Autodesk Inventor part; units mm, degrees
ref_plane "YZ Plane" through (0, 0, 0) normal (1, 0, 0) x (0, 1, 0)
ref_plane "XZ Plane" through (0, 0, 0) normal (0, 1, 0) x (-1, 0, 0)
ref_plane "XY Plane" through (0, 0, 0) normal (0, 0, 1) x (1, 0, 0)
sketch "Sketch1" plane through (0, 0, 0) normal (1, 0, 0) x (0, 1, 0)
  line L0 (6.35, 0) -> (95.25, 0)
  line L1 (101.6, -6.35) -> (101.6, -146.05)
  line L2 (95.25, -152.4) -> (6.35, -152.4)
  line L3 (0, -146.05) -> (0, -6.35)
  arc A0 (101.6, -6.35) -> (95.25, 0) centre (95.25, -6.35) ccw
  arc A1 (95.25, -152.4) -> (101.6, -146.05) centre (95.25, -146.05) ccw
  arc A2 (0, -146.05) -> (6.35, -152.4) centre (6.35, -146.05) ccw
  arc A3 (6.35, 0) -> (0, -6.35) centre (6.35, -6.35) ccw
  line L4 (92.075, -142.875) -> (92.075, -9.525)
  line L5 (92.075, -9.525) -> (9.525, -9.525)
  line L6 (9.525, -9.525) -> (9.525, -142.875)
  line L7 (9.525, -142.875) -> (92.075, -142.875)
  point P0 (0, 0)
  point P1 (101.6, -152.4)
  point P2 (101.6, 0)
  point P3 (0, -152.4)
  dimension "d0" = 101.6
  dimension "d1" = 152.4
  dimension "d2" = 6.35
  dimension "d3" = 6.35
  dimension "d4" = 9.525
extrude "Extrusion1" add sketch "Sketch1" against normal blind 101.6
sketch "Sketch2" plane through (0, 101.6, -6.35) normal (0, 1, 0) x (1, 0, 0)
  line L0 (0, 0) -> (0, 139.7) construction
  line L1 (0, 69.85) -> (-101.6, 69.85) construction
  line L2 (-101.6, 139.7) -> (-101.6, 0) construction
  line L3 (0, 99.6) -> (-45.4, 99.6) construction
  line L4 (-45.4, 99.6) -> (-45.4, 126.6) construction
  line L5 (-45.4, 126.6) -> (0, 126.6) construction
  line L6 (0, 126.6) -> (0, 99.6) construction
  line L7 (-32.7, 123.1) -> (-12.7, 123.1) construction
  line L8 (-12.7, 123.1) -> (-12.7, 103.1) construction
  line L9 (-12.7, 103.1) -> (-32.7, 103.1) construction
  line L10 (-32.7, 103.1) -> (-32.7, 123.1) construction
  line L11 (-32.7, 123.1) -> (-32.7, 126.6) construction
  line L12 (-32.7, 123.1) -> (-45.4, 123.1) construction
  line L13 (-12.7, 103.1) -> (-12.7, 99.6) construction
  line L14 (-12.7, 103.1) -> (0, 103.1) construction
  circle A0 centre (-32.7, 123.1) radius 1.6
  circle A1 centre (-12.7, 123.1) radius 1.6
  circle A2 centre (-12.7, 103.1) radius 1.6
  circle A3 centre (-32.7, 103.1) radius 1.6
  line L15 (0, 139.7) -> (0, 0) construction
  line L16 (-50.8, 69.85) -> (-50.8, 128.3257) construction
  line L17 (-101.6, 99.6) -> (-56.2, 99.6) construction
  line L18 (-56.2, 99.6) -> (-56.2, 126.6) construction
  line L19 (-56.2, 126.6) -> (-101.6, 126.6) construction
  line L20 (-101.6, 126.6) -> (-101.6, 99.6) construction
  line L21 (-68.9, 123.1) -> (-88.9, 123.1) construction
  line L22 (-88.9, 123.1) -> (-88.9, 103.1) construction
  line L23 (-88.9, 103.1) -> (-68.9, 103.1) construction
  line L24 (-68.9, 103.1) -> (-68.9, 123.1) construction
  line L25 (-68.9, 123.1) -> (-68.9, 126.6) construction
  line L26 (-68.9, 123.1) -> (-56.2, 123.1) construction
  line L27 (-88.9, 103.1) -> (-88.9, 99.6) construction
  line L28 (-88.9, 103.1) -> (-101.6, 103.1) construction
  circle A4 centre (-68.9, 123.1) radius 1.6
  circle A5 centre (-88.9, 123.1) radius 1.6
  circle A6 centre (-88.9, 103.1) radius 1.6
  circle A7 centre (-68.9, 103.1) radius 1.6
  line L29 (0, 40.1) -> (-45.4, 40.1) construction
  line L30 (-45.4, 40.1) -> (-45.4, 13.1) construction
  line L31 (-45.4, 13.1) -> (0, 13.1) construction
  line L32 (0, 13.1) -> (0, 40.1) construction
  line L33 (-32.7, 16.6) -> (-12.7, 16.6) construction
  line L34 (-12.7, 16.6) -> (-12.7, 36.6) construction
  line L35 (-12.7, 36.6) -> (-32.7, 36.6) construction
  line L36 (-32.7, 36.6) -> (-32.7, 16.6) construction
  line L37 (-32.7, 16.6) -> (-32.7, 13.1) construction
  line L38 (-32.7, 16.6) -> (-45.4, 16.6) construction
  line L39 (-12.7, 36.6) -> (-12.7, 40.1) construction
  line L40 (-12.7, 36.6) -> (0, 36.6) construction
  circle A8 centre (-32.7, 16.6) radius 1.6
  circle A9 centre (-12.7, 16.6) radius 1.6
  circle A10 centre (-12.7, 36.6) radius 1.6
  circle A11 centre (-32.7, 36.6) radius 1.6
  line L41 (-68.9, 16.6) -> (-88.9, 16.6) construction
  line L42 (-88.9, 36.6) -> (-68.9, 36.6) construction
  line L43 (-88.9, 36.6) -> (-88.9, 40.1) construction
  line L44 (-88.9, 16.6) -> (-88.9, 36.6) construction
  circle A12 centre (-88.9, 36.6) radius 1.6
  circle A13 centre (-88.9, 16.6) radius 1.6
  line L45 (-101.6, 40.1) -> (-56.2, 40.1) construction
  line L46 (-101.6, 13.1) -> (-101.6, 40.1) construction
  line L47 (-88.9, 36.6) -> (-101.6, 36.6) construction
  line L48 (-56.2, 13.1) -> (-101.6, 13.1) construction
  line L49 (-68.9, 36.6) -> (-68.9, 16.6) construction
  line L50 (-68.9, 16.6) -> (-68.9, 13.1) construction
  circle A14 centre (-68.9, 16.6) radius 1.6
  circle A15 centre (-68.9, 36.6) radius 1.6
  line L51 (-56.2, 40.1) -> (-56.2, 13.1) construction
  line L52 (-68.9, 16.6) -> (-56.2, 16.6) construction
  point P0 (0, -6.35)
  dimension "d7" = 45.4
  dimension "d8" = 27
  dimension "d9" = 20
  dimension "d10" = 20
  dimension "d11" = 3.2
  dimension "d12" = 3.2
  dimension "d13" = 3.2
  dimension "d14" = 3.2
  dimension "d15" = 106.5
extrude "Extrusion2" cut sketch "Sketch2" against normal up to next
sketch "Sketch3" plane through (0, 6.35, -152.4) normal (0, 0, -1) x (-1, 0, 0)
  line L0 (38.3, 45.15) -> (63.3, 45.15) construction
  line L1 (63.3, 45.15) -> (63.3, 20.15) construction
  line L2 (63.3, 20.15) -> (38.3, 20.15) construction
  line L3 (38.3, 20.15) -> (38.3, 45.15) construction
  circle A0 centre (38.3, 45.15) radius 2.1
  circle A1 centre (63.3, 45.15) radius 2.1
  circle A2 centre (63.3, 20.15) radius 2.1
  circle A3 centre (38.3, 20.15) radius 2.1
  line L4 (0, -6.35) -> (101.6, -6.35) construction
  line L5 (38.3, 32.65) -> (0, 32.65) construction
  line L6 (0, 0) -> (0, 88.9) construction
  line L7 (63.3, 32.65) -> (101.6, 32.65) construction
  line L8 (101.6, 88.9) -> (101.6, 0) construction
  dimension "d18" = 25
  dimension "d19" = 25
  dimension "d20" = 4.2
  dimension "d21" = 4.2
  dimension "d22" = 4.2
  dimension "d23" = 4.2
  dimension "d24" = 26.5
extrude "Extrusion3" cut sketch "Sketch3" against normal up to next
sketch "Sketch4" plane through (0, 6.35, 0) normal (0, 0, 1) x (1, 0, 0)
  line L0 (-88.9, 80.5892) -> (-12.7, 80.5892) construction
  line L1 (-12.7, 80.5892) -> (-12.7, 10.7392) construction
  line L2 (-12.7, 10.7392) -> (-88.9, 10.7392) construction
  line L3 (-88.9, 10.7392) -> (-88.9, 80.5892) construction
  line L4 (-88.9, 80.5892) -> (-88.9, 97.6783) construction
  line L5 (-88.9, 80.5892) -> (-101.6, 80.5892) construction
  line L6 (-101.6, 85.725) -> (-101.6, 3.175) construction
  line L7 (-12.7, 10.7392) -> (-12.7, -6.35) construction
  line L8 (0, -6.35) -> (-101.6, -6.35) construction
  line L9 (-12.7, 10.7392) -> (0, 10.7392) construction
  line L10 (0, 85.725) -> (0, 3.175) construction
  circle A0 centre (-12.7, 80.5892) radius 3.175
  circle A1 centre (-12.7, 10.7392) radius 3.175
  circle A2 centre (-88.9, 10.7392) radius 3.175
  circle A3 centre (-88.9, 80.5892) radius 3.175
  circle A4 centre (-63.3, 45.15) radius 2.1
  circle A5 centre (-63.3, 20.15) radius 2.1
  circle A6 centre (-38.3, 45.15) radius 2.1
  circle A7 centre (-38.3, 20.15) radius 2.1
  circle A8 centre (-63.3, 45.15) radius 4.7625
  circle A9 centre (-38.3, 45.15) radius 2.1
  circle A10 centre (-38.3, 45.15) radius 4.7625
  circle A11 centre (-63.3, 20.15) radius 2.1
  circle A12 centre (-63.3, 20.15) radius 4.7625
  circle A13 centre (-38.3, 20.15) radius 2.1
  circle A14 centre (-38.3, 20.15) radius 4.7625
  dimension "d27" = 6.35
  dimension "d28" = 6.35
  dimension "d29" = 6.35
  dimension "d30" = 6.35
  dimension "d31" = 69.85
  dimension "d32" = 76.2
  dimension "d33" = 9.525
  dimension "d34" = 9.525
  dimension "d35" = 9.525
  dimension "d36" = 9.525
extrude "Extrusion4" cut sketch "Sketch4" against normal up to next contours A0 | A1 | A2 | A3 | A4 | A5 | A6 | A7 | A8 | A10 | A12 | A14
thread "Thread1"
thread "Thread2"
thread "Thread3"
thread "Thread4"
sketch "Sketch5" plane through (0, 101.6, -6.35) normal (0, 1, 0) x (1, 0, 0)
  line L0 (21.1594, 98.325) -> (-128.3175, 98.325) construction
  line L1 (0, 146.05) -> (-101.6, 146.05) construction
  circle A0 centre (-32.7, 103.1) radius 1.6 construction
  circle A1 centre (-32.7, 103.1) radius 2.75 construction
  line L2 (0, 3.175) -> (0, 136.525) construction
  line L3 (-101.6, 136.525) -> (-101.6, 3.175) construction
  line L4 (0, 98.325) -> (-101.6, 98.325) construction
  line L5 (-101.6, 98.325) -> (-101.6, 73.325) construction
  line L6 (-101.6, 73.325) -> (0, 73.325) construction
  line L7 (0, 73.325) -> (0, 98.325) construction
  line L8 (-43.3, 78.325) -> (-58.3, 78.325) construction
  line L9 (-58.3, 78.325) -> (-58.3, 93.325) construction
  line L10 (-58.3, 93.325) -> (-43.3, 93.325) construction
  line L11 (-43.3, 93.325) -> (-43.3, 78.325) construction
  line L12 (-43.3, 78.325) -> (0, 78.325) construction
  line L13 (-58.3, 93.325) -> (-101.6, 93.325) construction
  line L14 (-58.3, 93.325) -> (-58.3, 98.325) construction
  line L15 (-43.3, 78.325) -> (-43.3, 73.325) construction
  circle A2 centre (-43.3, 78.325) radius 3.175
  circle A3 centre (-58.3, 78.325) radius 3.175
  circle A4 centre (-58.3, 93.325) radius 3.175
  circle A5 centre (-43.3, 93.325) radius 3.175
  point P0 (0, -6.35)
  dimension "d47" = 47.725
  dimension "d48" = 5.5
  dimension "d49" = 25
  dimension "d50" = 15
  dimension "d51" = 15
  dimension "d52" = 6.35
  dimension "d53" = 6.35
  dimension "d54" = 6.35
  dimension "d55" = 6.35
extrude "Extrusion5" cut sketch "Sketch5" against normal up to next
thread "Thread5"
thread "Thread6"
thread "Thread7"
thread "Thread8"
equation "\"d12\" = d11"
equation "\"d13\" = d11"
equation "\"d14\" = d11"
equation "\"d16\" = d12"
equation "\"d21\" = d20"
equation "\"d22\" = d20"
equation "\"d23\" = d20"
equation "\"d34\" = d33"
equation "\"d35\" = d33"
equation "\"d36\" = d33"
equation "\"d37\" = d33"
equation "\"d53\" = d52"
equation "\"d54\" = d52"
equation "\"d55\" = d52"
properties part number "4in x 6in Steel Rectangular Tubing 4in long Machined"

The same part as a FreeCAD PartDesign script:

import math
import FreeCAD as App
import Part
import Sketcher
Q = App.Units.Quantity

doc = App.newDocument("Part")
params = doc.addObject("Spreadsheet::Sheet", "Params")
for row, (alias, value) in enumerate([
    ("sketch1_radius", "0.25 in"),
    ("pad1_length", "4 in"),
    ("sketch4_diameter", "0.25 in"),
    ("sketch4_diameter2", "0.375 in"),
    ("sketch5_diameter", "0.25 in"),
], start=1):
    params.set(f"A{row}", alias)
    params.set(f"B{row}", "=" + value)
    params.setAlias(f"B{row}", alias)

body = doc.addObject("PartDesign::Body", "Body")

# Sketch on YZ plane
sketch1 = doc.addObject("Sketcher::SketchObject", "Sketch")
body.addObject(sketch1)
sketch1.AttachmentSupport = (doc.YZ_Plane, [""])
sketch1.MapMode = "FlatFace"
sketch1.addGeometry(Part.LineSegment(App.Vector(95, 0, 0), App.Vector(6, 0, 0)), False)
sketch1.addGeometry(Part.ArcOfCircle(Part.Circle(App.Vector(6, -6, 0), App.Vector(0, 0, 1), 6), math.radians(90), math.radians(180)), False)
sketch1.addGeometry(Part.LineSegment(App.Vector(0, -6, 0), App.Vector(0, -146, 0)), False)
sketch1.addGeometry(Part.ArcOfCircle(Part.Circle(App.Vector(6, -146, 0), App.Vector(0, 0, 1), 6), math.radians(180), math.radians(270)), False)
sketch1.addGeometry(Part.LineSegment(App.Vector(6, -152, 0), App.Vector(95, -152, 0)), False)
sketch1.addGeometry(Part.ArcOfCircle(Part.Circle(App.Vector(95, -146, 0), App.Vector(0, 0, 1), 6), math.radians(-90), math.radians(0)), False)
sketch1.addGeometry(Part.LineSegment(App.Vector(102, -146, 0), App.Vector(102, -6, 0)), False)
sketch1.addGeometry(Part.ArcOfCircle(Part.Circle(App.Vector(95, -6, 0), App.Vector(0, 0, 1), 6), math.radians(0), math.radians(90)), False)
sketch1.addGeometry(Part.LineSegment(App.Vector(92, -10, 0), App.Vector(92, -143, 0)), False)
sketch1.addGeometry(Part.LineSegment(App.Vector(92, -143, 0), App.Vector(10, -143, 0)), False)
sketch1.addGeometry(Part.LineSegment(App.Vector(10, -143, 0), App.Vector(10, -10, 0)), False)
sketch1.addGeometry(Part.LineSegment(App.Vector(10, -10, 0), App.Vector(92, -10, 0)), False)
sketch1.addConstraint(Sketcher.Constraint("Tangent", 0, 2, 1, 1))
sketch1.addConstraint(Sketcher.Constraint("Tangent", 1, 2, 2, 1))
sketch1.addConstraint(Sketcher.Constraint("Tangent", 2, 2, 3, 1))
sketch1.addConstraint(Sketcher.Constraint("Tangent", 3, 2, 4, 1))
sketch1.addConstraint(Sketcher.Constraint("Tangent", 4, 2, 5, 1))
sketch1.addConstraint(Sketcher.Constraint("Tangent", 5, 2, 6, 1))
sketch1.addConstraint(Sketcher.Constraint("Tangent", 6, 2, 7, 1))
sketch1.addConstraint(Sketcher.Constraint("Tangent", 7, 2, 0, 1))
sketch1.addConstraint(Sketcher.Constraint("Coincident", 8, 2, 9, 1))
sketch1.addConstraint(Sketcher.Constraint("Coincident", 9, 2, 10, 1))
sketch1.addConstraint(Sketcher.Constraint("Coincident", 10, 2, 11, 1))
sketch1.addConstraint(Sketcher.Constraint("Coincident", 11, 2, 8, 1))
sketch1.addConstraint(Sketcher.Constraint("Horizontal", 0))
sketch1.addConstraint(Sketcher.Constraint("Vertical", 2))
sketch1.addConstraint(Sketcher.Constraint("Horizontal", 4))
sketch1.addConstraint(Sketcher.Constraint("Vertical", 6))
sketch1.addConstraint(Sketcher.Constraint("Vertical", 8))
sketch1.addConstraint(Sketcher.Constraint("Horizontal", 9))
sketch1.addConstraint(Sketcher.Constraint("Vertical", 10))
sketch1.addConstraint(Sketcher.Constraint("Horizontal", 11))
sketch1.addConstraint(Sketcher.Constraint("Equal", 1, 3))
sketch1.addConstraint(Sketcher.Constraint("Equal", 3, 5))
sketch1.addConstraint(Sketcher.Constraint("Equal", 5, 7))
sketch1.addConstraint(Sketcher.Constraint("PointOnObject", 0, 2, -1))
sketch1.addConstraint(Sketcher.Constraint("PointOnObject", 1, 2, -2))
sketch1.addConstraint(Sketcher.Constraint("Radius", 1, Q("0.25 in")))
sketch1.addConstraint(Sketcher.Constraint("DistanceY", 3, 2, -1, 1, Q("6 in")))
sketch1.addConstraint(Sketcher.Constraint("DistanceX", -1, 1, 5, 2, Q("4 in")))
sketch1.addConstraint(Sketcher.Constraint("DistanceX", -1, 1, 9, 2, Q("0.375 in")))
sketch1.addConstraint(Sketcher.Constraint("DistanceY", 10, 2, -1, 1, Q("0.375 in")))
sketch1.addConstraint(Sketcher.Constraint("DistanceX", 8, 2, 5, 2, Q("0.375 in")))
sketch1.addConstraint(Sketcher.Constraint("DistanceY", 4, 2, 8, 2, Q("0.375 in")))
sketch1.setExpression("Constraints[25]", "Params.sketch1_radius")
pad1 = doc.addObject("PartDesign::Pad", "Pad")
body.addObject(pad1)
pad1.Profile = sketch1
pad1.setExpression("Length", "Params.pad1_length")
pad1.Reversed = True

# Sketch on XZ plane
sketch2 = doc.addObject("Sketcher::SketchObject", "Sketch001")
body.addObject(sketch2)
sketch2.AttachmentSupport = (doc.XZ_Plane, [""])
sketch2.MapMode = "FlatFace"
sketch2.AttachmentOffset = App.Placement(App.Vector(0, 0, -4 * 25.4), App.Rotation())
sketch2.addGeometry(Part.Circle(App.Vector(-32.7, -129.4, 0), App.Vector(0, 0, 1), 1.6), False)
sketch2.addGeometry(Part.Circle(App.Vector(-12.7, -129.4, 0), App.Vector(0, 0, 1), 1.6), False)
sketch2.addGeometry(Part.Circle(App.Vector(-12.7, -109.5, 0), App.Vector(0, 0, 1), 1.6), False)
sketch2.addGeometry(Part.Circle(App.Vector(-32.7, -109.5, 0), App.Vector(0, 0, 1), 1.6), False)
sketch2.addGeometry(Part.Circle(App.Vector(-68.9, -129.4, 0), App.Vector(0, 0, 1), 1.6), False)
sketch2.addGeometry(Part.Circle(App.Vector(-88.9, -129.4, 0), App.Vector(0, 0, 1), 1.6), False)
sketch2.addGeometry(Part.Circle(App.Vector(-88.9, -109.5, 0), App.Vector(0, 0, 1), 1.6), False)
sketch2.addGeometry(Part.Circle(App.Vector(-68.9, -109.5, 0), App.Vector(0, 0, 1), 1.6), False)
sketch2.addGeometry(Part.Circle(App.Vector(-32.7, -22.9, 0), App.Vector(0, 0, 1), 1.6), False)
sketch2.addGeometry(Part.Circle(App.Vector(-12.7, -22.9, 0), App.Vector(0, 0, 1), 1.6), False)
sketch2.addGeometry(Part.Circle(App.Vector(-12.7, -43, 0), App.Vector(0, 0, 1), 1.6), False)
sketch2.addGeometry(Part.Circle(App.Vector(-32.7, -43, 0), App.Vector(0, 0, 1), 1.6), False)
sketch2.addGeometry(Part.Circle(App.Vector(-88.9, -43, 0), App.Vector(0, 0, 1), 1.6), False)
sketch2.addGeometry(Part.Circle(App.Vector(-88.9, -22.9, 0), App.Vector(0, 0, 1), 1.6), False)
sketch2.addGeometry(Part.Circle(App.Vector(-68.9, -22.9, 0), App.Vector(0, 0, 1), 1.6), False)
sketch2.addGeometry(Part.Circle(App.Vector(-68.9, -43, 0), App.Vector(0, 0, 1), 1.6), False)
sketch2.addConstraint(Sketcher.Constraint("Equal", 0, 1))
sketch2.addConstraint(Sketcher.Constraint("Equal", 1, 2))
sketch2.addConstraint(Sketcher.Constraint("Equal", 2, 3))
sketch2.addConstraint(Sketcher.Constraint("Equal", 3, 4))
sketch2.addConstraint(Sketcher.Constraint("Equal", 4, 5))
sketch2.addConstraint(Sketcher.Constraint("Equal", 5, 6))
sketch2.addConstraint(Sketcher.Constraint("Equal", 6, 7))
sketch2.addConstraint(Sketcher.Constraint("Equal", 7, 8))
sketch2.addConstraint(Sketcher.Constraint("Equal", 8, 9))
sketch2.addConstraint(Sketcher.Constraint("Equal", 9, 10))
sketch2.addConstraint(Sketcher.Constraint("Equal", 10, 11))
sketch2.addConstraint(Sketcher.Constraint("Equal", 11, 12))
sketch2.addConstraint(Sketcher.Constraint("Equal", 12, 13))
sketch2.addConstraint(Sketcher.Constraint("Equal", 13, 14))
sketch2.addConstraint(Sketcher.Constraint("Equal", 14, 15))
sketch2.addConstraint(Sketcher.Constraint("Horizontal", 0, 3, 1, 3))
sketch2.addConstraint(Sketcher.Constraint("Horizontal", 2, 3, 3, 3))
sketch2.addConstraint(Sketcher.Constraint("Horizontal", 1, 3, 4, 3))
sketch2.addConstraint(Sketcher.Constraint("Horizontal", 4, 3, 5, 3))
sketch2.addConstraint(Sketcher.Constraint("Horizontal", 3, 3, 6, 3))
sketch2.addConstraint(Sketcher.Constraint("Horizontal", 6, 3, 7, 3))
sketch2.addConstraint(Sketcher.Constraint("Horizontal", 8, 3, 9, 3))
sketch2.addConstraint(Sketcher.Constraint("Horizontal", 10, 3, 11, 3))
sketch2.addConstraint(Sketcher.Constraint("Horizontal", 11, 3, 12, 3))
sketch2.addConstraint(Sketcher.Constraint("Horizontal", 9, 3, 13, 3))
sketch2.addConstraint(Sketcher.Constraint("Horizontal", 13, 3, 14, 3))
sketch2.addConstraint(Sketcher.Constraint("Horizontal", 12, 3, 15, 3))
sketch2.addConstraint(Sketcher.Constraint("Vertical", 1, 3, 2, 3))
sketch2.addConstraint(Sketcher.Constraint("Vertical", 0, 3, 3, 3))
sketch2.addConstraint(Sketcher.Constraint("Vertical", 5, 3, 6, 3))
sketch2.addConstraint(Sketcher.Constraint("Vertical", 4, 3, 7, 3))
sketch2.addConstraint(Sketcher.Constraint("Vertical", 3, 3, 8, 3))
sketch2.addConstraint(Sketcher.Constraint("Vertical", 2, 3, 9, 3))
sketch2.addConstraint(Sketcher.Constraint("Vertical", 9, 3, 10, 3))
sketch2.addConstraint(Sketcher.Constraint("Vertical", 8, 3, 11, 3))
sketch2.addConstraint(Sketcher.Constraint("Vertical", 6, 3, 12, 3))
sketch2.addConstraint(Sketcher.Constraint("Vertical", 12, 3, 13, 3))
sketch2.addConstraint(Sketcher.Constraint("Vertical", 7, 3, 14, 3))
sketch2.addConstraint(Sketcher.Constraint("Vertical", 14, 3, 15, 3))
sketch2.addConstraint(Sketcher.Constraint("Diameter", 0, Q("3.2 mm")))
sketch2.addConstraint(Sketcher.Constraint("DistanceX", 5, 3, 1, 3, Q("3 in")))
sketch2.addConstraint(Sketcher.Constraint("DistanceX", 1, 3, -1, 1, Q("0.5 in")))
sketch2.addConstraint(Sketcher.Constraint("DistanceX", 0, 3, 1, 3, Q("0.7874 in")))
sketch2.addConstraint(Sketcher.Constraint("DistanceY", 1, 3, 2, 3, Q("0.7874 in")))
sketch2.addConstraint(Sketcher.Constraint("DistanceX", 5, 3, 4, 3, Q("0.7874 in")))
sketch2.addConstraint(Sketcher.Constraint("DistanceY", 10, 3, 9, 3, Q("0.7874 in")))
sketch2.addConstraint(Sketcher.Constraint("DistanceY", 0, 3, 8, 3, Q("106.5 mm")))
sketch2.addConstraint(Sketcher.Constraint("DistanceY", 0, 3, -1, 1, Q("129.45 mm")))
pocket1 = doc.addObject("PartDesign::Pocket", "Pocket")
body.addObject(pocket1)
pocket1.Profile = sketch2
pocket1.Type = "UpToFirst"
pocket1.Reversed = True

# Sketch on XY plane
sketch3 = doc.addObject("Sketcher::SketchObject", "Sketch002")
body.addObject(sketch3)
sketch3.AttachmentSupport = (doc.XY_Plane, [""])
sketch3.MapMode = "FlatFace"
sketch3.AttachmentOffset = App.Placement(App.Vector(0, 0, -6 * 25.4), App.Rotation())
sketch3.addGeometry(Part.Circle(App.Vector(-38.3, 51.5, 0), App.Vector(0, 0, 1), 2.1), False)
sketch3.addGeometry(Part.Circle(App.Vector(-63.3, 51.5, 0), App.Vector(0, 0, 1), 2.1), False)
sketch3.addGeometry(Part.Circle(App.Vector(-63.3, 26.5, 0), App.Vector(0, 0, 1), 2.1), False)
sketch3.addGeometry(Part.Circle(App.Vector(-38.3, 26.5, 0), App.Vector(0, 0, 1), 2.1), False)
sketch3.addConstraint(Sketcher.Constraint("Equal", 0, 1))
sketch3.addConstraint(Sketcher.Constraint("Equal", 1, 2))
sketch3.addConstraint(Sketcher.Constraint("Equal", 2, 3))
sketch3.addConstraint(Sketcher.Constraint("Horizontal", 0, 3, 1, 3))
sketch3.addConstraint(Sketcher.Constraint("Horizontal", 2, 3, 3, 3))
sketch3.addConstraint(Sketcher.Constraint("Vertical", 1, 3, 2, 3))
sketch3.addConstraint(Sketcher.Constraint("Vertical", 0, 3, 3, 3))
sketch3.addConstraint(Sketcher.Constraint("Diameter", 0, Q("4.2 mm")))
sketch3.addConstraint(Sketcher.Constraint("DistanceY", -1, 1, 2, 3, Q("1.0433 in")))
sketch3.addConstraint(Sketcher.Constraint("DistanceX", 1, 3, 0, 3, Q("25 mm")))
sketch3.addConstraint(Sketcher.Constraint("DistanceY", 2, 3, 1, 3, Q("25 mm")))
sketch3.addConstraint(Sketcher.Constraint("DistanceX", 0, 3, -1, 1, Q("38.3 mm")))
pocket2 = doc.addObject("PartDesign::Pocket", "Pocket001")
body.addObject(pocket2)
pocket2.Profile = sketch3
pocket2.Type = "UpToFirst"
pocket2.Reversed = True

# Sketch on XY plane
sketch4 = doc.addObject("Sketcher::SketchObject", "Sketch003")
body.addObject(sketch4)
sketch4.AttachmentSupport = (doc.XY_Plane, [""])
sketch4.MapMode = "FlatFace"
sketch4.addGeometry(Part.Circle(App.Vector(-12.7, 86.9, 0), App.Vector(0, 0, 1), 3.2), False)
sketch4.addGeometry(Part.Circle(App.Vector(-12.7, 17.1, 0), App.Vector(0, 0, 1), 3.2), False)
sketch4.addGeometry(Part.Circle(App.Vector(-88.9, 17.1, 0), App.Vector(0, 0, 1), 3.2), False)
sketch4.addGeometry(Part.Circle(App.Vector(-88.9, 86.9, 0), App.Vector(0, 0, 1), 3.2), False)
sketch4.addGeometry(Part.Circle(App.Vector(-63.3, 51.5, 0), App.Vector(0, 0, 1), 4.8), False)
sketch4.addGeometry(Part.Circle(App.Vector(-63.3, 26.5, 0), App.Vector(0, 0, 1), 4.8), False)
sketch4.addGeometry(Part.Circle(App.Vector(-38.3, 51.5, 0), App.Vector(0, 0, 1), 4.8), False)
sketch4.addGeometry(Part.Circle(App.Vector(-38.3, 26.5, 0), App.Vector(0, 0, 1), 4.8), False)
sketch4.addConstraint(Sketcher.Constraint("Equal", 0, 1))
sketch4.addConstraint(Sketcher.Constraint("Equal", 1, 2))
sketch4.addConstraint(Sketcher.Constraint("Equal", 2, 3))
sketch4.addConstraint(Sketcher.Constraint("Equal", 4, 5))
sketch4.addConstraint(Sketcher.Constraint("Equal", 5, 6))
sketch4.addConstraint(Sketcher.Constraint("Equal", 6, 7))
sketch4.addConstraint(Sketcher.Constraint("Horizontal", 1, 3, 2, 3))
sketch4.addConstraint(Sketcher.Constraint("Horizontal", 0, 3, 3, 3))
sketch4.addConstraint(Sketcher.Constraint("Horizontal", 4, 3, 6, 3))
sketch4.addConstraint(Sketcher.Constraint("Horizontal", 5, 3, 7, 3))
sketch4.addConstraint(Sketcher.Constraint("Vertical", 0, 3, 1, 3))
sketch4.addConstraint(Sketcher.Constraint("Vertical", 2, 3, 3, 3))
sketch4.addConstraint(Sketcher.Constraint("Vertical", 4, 3, 5, 3))
sketch4.addConstraint(Sketcher.Constraint("Vertical", 6, 3, 7, 3))
sketch4.addConstraint(Sketcher.Constraint("Diameter", 0, Q("0.25 in")))
sketch4.addConstraint(Sketcher.Constraint("Diameter", 4, Q("0.375 in")))
sketch4.addConstraint(Sketcher.Constraint("DistanceX", 2, 3, 1, 3, Q("3 in")))
sketch4.addConstraint(Sketcher.Constraint("DistanceY", 1, 3, 0, 3, Q("2.75 in")))
sketch4.addConstraint(Sketcher.Constraint("DistanceX", 0, 3, -1, 1, Q("0.5 in")))
sketch4.addConstraint(Sketcher.Constraint("DistanceY", -1, 1, 0, 3, Q("3.4228 in")))
sketch4.addConstraint(Sketcher.Constraint("DistanceY", -1, 1, 5, 3, Q("1.0433 in")))
sketch4.addConstraint(Sketcher.Constraint("DistanceX", 4, 3, -1, 1, Q("63.3 mm")))
sketch4.addConstraint(Sketcher.Constraint("DistanceY", -1, 1, 4, 3, Q("51.5 mm")))
sketch4.addConstraint(Sketcher.Constraint("DistanceX", 6, 3, -1, 1, Q("38.3 mm")))
sketch4.setExpression("Constraints[14]", "Params.sketch4_diameter")
sketch4.setExpression("Constraints[15]", "Params.sketch4_diameter2")
pocket3 = doc.addObject("PartDesign::Pocket", "Pocket002")
body.addObject(pocket3)
pocket3.Profile = sketch4
pocket3.Type = "UpToFirst"

# Sketch on XZ plane
sketch5 = doc.addObject("Sketcher::SketchObject", "Sketch004")
body.addObject(sketch5)
sketch5.AttachmentSupport = (doc.XZ_Plane, [""])
sketch5.MapMode = "FlatFace"
sketch5.AttachmentOffset = App.Placement(App.Vector(0, 0, -4 * 25.4), App.Rotation())
sketch5.addGeometry(Part.Circle(App.Vector(-43.3, -84.7, 0), App.Vector(0, 0, 1), 3.2), False)
sketch5.addGeometry(Part.Circle(App.Vector(-58.3, -84.7, 0), App.Vector(0, 0, 1), 3.2), False)
sketch5.addGeometry(Part.Circle(App.Vector(-58.3, -99.7, 0), App.Vector(0, 0, 1), 3.2), False)
sketch5.addGeometry(Part.Circle(App.Vector(-43.3, -99.7, 0), App.Vector(0, 0, 1), 3.2), False)
sketch5.addConstraint(Sketcher.Constraint("Equal", 0, 1))
sketch5.addConstraint(Sketcher.Constraint("Equal", 1, 2))
sketch5.addConstraint(Sketcher.Constraint("Equal", 2, 3))
sketch5.addConstraint(Sketcher.Constraint("Horizontal", 0, 3, 1, 3))
sketch5.addConstraint(Sketcher.Constraint("Horizontal", 2, 3, 3, 3))
sketch5.addConstraint(Sketcher.Constraint("Vertical", 1, 3, 2, 3))
sketch5.addConstraint(Sketcher.Constraint("Vertical", 0, 3, 3, 3))
sketch5.addConstraint(Sketcher.Constraint("Diameter", 0, Q("0.25 in")))
sketch5.addConstraint(Sketcher.Constraint("DistanceX", 1, 3, 0, 3, Q("15 mm")))
sketch5.addConstraint(Sketcher.Constraint("DistanceY", 2, 3, 1, 3, Q("15 mm")))
sketch5.addConstraint(Sketcher.Constraint("DistanceX", 0, 3, -1, 1, Q("43.3 mm")))
sketch5.addConstraint(Sketcher.Constraint("DistanceY", 0, 3, -1, 1, Q("84.675 mm")))
sketch5.setExpression("Constraints[7]", "Params.sketch5_diameter")
pocket4 = doc.addObject("PartDesign::Pocket", "Pocket003")
body.addObject(pocket4)
pocket4.Profile = sketch5
pocket4.Type = "UpToFirst"
pocket4.Reversed = True

doc.recompute()
